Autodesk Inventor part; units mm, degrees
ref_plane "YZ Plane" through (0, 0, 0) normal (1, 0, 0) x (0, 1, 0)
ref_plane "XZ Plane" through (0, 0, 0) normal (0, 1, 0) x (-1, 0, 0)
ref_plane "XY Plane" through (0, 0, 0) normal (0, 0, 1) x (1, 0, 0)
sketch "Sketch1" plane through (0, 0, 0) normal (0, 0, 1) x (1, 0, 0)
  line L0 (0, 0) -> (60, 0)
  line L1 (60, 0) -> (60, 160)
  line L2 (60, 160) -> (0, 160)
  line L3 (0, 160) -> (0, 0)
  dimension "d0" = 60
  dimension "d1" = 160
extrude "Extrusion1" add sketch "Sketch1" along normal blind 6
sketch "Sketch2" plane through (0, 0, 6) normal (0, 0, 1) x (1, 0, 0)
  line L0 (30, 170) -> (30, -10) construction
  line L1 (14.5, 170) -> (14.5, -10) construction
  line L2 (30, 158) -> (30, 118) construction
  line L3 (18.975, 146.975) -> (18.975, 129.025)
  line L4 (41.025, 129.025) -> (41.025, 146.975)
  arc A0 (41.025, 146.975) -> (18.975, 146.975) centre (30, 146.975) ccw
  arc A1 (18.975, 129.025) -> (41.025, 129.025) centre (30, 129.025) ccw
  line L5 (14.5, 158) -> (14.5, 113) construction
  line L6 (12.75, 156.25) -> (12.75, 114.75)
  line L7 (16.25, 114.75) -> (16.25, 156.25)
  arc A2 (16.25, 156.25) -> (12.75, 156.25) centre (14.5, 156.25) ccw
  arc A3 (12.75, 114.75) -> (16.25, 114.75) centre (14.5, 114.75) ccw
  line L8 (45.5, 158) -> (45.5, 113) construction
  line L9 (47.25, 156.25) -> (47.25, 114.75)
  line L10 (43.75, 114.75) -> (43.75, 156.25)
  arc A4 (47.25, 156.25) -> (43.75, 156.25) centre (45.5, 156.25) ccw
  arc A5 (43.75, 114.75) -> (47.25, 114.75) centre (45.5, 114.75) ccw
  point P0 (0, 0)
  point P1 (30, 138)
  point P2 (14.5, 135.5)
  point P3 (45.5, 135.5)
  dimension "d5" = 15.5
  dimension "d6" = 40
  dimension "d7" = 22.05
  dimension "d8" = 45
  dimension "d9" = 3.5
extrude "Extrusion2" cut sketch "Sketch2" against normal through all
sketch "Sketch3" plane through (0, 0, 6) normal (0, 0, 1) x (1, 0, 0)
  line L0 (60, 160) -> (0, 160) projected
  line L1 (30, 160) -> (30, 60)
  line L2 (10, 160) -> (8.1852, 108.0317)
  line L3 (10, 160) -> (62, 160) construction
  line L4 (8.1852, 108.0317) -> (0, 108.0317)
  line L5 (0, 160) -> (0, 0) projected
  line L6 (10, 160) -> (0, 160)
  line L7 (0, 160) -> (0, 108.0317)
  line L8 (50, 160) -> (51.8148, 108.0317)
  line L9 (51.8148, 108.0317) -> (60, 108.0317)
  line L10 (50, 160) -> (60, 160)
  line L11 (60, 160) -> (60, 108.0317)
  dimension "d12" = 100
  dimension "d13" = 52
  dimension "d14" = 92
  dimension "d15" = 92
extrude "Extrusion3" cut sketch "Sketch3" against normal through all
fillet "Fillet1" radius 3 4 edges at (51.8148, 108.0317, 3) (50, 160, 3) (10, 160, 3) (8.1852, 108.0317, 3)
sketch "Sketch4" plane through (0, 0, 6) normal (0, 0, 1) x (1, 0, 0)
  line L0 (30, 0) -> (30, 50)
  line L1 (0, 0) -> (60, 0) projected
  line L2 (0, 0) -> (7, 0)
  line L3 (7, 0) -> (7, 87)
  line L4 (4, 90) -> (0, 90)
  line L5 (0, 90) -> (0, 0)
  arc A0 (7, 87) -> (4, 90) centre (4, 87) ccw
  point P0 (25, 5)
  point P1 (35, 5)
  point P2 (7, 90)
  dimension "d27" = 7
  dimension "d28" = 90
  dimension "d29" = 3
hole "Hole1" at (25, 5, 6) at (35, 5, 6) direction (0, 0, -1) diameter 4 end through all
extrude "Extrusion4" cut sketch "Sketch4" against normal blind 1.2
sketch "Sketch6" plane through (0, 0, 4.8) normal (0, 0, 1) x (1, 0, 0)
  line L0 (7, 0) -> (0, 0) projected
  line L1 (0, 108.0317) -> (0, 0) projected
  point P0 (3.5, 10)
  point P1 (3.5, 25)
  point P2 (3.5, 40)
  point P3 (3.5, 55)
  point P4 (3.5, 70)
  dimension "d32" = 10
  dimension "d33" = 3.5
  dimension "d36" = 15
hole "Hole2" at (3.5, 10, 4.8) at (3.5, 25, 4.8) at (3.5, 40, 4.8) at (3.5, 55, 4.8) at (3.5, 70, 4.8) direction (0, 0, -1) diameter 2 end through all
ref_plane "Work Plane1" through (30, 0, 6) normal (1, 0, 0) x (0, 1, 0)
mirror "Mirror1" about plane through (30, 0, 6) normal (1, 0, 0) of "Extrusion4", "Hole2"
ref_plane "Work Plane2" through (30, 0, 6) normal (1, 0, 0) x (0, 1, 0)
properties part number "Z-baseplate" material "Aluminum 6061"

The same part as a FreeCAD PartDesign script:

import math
import FreeCAD as App
import Part
import Sketcher
from FreeCAD import Vector
Q = App.Units.Quantity


def edges_at(feature, points):
    """Names of the edges that pass closest to the given points."""
    edges = feature.Shape.Edges
    near = lambda p: min(range(len(edges)), key=lambda i: edges[i].distToShape(Part.Vertex(*p))[0])
    return sorted({f"Edge{near(p) + 1}" for p in points})

doc = App.newDocument("Part")
params = doc.addObject("Spreadsheet::Sheet", "Params")
for row, (alias, value) in enumerate([
    ("sketch1_width", "60 mm"),
    ("sketch1_height", "160 mm"),
    ("pad1_length", "6 mm"),
    ("sketch2_radius", "1.75 mm"),
    ("sketch2_height", "41.5 mm"),
    ("sketch2_height2", "17.95 mm"),
    ("sketch3_length", "52 mm"),
    ("sketch3_width", "10 mm"),
    ("fillet_radius", "3 mm"),
    ("sketch4_diameter", "4 mm"),
    ("hole_diameter", "4 mm"),
    ("sketch5_radius", "3 mm"),
    ("sketch5_width", "7 mm"),
    ("sketch5_height", "90 mm"),
    ("pocket3_length", "1.2 mm"),
    ("sketch6_diameter", "2 mm"),
    ("hole2_diameter", "2 mm"),
], start=1):
    params.set(f"A{row}", alias)
    params.set(f"B{row}", "=" + value)
    params.setAlias(f"B{row}", alias)

body = doc.addObject("PartDesign::Body", "Body")

sketch1 = body.newObject("Sketcher::SketchObject", "Sketch")
sketch1.AttachmentSupport = (doc.getObject("XY_Plane"), [""])
sketch1.MapMode = "FlatFace"
sketch1.addGeometry(Part.LineSegment(Vector(0, 160, 0), Vector(0, 0, 0)), False)
sketch1.addGeometry(Part.LineSegment(Vector(0, 0, 0), Vector(60, 0, 0)), False)
sketch1.addGeometry(Part.LineSegment(Vector(60, 0, 0), Vector(60, 160, 0)), False)
sketch1.addGeometry(Part.LineSegment(Vector(60, 160, 0), Vector(0, 160, 0)), False)
sketch1.addConstraint(Sketcher.Constraint("Coincident", 0, 2, 1, 1))
sketch1.addConstraint(Sketcher.Constraint("Coincident", 1, 2, 2, 1))
sketch1.addConstraint(Sketcher.Constraint("Coincident", 2, 2, 3, 1))
sketch1.addConstraint(Sketcher.Constraint("Coincident", 3, 2, 0, 1))
sketch1.addConstraint(Sketcher.Constraint("Vertical", 0))
sketch1.addConstraint(Sketcher.Constraint("Horizontal", 1))
sketch1.addConstraint(Sketcher.Constraint("Vertical", 2))
sketch1.addConstraint(Sketcher.Constraint("Horizontal", 3))
sketch1.addConstraint(Sketcher.Constraint("Coincident", 0, 2, -1, 1))
sketch1.addConstraint(Sketcher.Constraint("DistanceX", 1, 1, 1, 2, Q("60 mm")))
sketch1.addConstraint(Sketcher.Constraint("DistanceY", 0, 2, 0, 1, Q("160 mm")))
sketch1.setExpression("Constraints[9]", "Params.sketch1_width")
sketch1.setExpression("Constraints[10]", "Params.sketch1_height")
pad1 = body.newObject("PartDesign::Pad", "Pad")
pad1.Profile = sketch1
pad1.setExpression("Length", "Params.pad1_length")

sketch2 = body.newObject("Sketcher::SketchObject", "Sketch001")
sketch2.AttachmentSupport = (doc.getObject("XY_Plane"), [""])
sketch2.MapMode = "FlatFace"
sketch2.AttachmentOffset = App.Placement(Vector(0, 0, 6), App.Rotation())
sketch2.addGeometry(Part.ArcOfCircle(Part.Circle(Vector(30, 146.975, 0), Vector(0, 0, 1), 11.025), math.radians(0), math.radians(180)), False)
sketch2.addGeometry(Part.LineSegment(Vector(18.975, 146.975, 0), Vector(18.975, 129.025, 0)), False)
sketch2.addGeometry(Part.ArcOfCircle(Part.Circle(Vector(30, 129.025, 0), Vector(0, 0, 1), 11.025), math.radians(180), math.radians(360)), False)
sketch2.addGeometry(Part.LineSegment(Vector(41.025, 129.025, 0), Vector(41.025, 146.975, 0)), False)
sketch2.addGeometry(Part.ArcOfCircle(Part.Circle(Vector(14.5, 156.25, 0), Vector(0, 0, 1), 1.75), math.radians(0), math.radians(180)), False)
sketch2.addGeometry(Part.LineSegment(Vector(12.75, 156.25, 0), Vector(12.75, 114.75, 0)), False)
sketch2.addGeometry(Part.ArcOfCircle(Part.Circle(Vector(14.5, 114.75, 0), Vector(0, 0, 1), 1.75), math.radians(180), math.radians(360)), False)
sketch2.addGeometry(Part.LineSegment(Vector(16.25, 114.75, 0), Vector(16.25, 156.25, 0)), False)
sketch2.addGeometry(Part.LineSegment(Vector(47.25, 114.75, 0), Vector(47.25, 156.25, 0)), False)
sketch2.addGeometry(Part.ArcOfCircle(Part.Circle(Vector(45.5, 156.25, 0), Vector(0, 0, 1), 1.75), math.radians(0), math.radians(180)), False)
sketch2.addGeometry(Part.LineSegment(Vector(43.75, 156.25, 0), Vector(43.75, 114.75, 0)), False)
sketch2.addGeometry(Part.ArcOfCircle(Part.Circle(Vector(45.5, 114.75, 0), Vector(0, 0, 1), 1.75), math.radians(180), math.radians(360)), False)
sketch2.addConstraint(Sketcher.Constraint("Tangent", 0, 2, 1, 1))
sketch2.addConstraint(Sketcher.Constraint("Tangent", 1, 2, 2, 1))
sketch2.addConstraint(Sketcher.Constraint("Tangent", 2, 2, 3, 1))
sketch2.addConstraint(Sketcher.Constraint("Tangent", 3, 2, 0, 1))
sketch2.addConstraint(Sketcher.Constraint("Tangent", 4, 2, 5, 1))
sketch2.addConstraint(Sketcher.Constraint("Tangent", 5, 2, 6, 1))
sketch2.addConstraint(Sketcher.Constraint("Tangent", 6, 2, 7, 1))
sketch2.addConstraint(Sketcher.Constraint("Tangent", 7, 2, 4, 1))
sketch2.addConstraint(Sketcher.Constraint("Tangent", 8, 2, 9, 1))
sketch2.addConstraint(Sketcher.Constraint("Tangent", 9, 2, 10, 1))
sketch2.addConstraint(Sketcher.Constraint("Tangent", 10, 2, 11, 1))
sketch2.addConstraint(Sketcher.Constraint("Tangent", 11, 2, 8, 1))
sketch2.addConstraint(Sketcher.Constraint("Vertical", 1))
sketch2.addConstraint(Sketcher.Constraint("Vertical", 3))
sketch2.addConstraint(Sketcher.Constraint("Vertical", 5))
sketch2.addConstraint(Sketcher.Constraint("Vertical", 7))
sketch2.addConstraint(Sketcher.Constraint("Vertical", 8))
sketch2.addConstraint(Sketcher.Constraint("Vertical", 10))
sketch2.addConstraint(Sketcher.Constraint("Equal", 6, 9))
sketch2.addConstraint(Sketcher.Constraint("Horizontal", 4, 3, 9, 3))
sketch2.addConstraint(Sketcher.Constraint("Horizontal", 6, 3, 11, 3))
sketch2.addConstraint(Sketcher.Constraint("Radius", 4, Q("1.75 mm")))
sketch2.addConstraint(Sketcher.Constraint("Radius", 0, Q("11.025 mm")))
sketch2.addConstraint(Sketcher.Constraint("DistanceX", 4, 3, 0, 3, Q("15.5 mm")))
sketch2.addConstraint(Sketcher.Constraint("DistanceX", 0, 3, 9, 3, Q("15.5 mm")))
sketch2.addConstraint(Sketcher.Constraint("DistanceY", 5, 2, 5, 1, Q("41.5 mm")))
sketch2.addConstraint(Sketcher.Constraint("DistanceX", -1, 1, 0, 3, Q("30 mm")))
sketch2.addConstraint(Sketcher.Constraint("DistanceY", 1, 2, 1, 1, Q("17.95 mm")))
sketch2.addConstraint(Sketcher.Constraint("DistanceY", -1, 1, 4, 3, Q("156.25 mm")))
sketch2.addConstraint(Sketcher.Constraint("DistanceY", -1, 1, 0, 3, Q("146.975 mm")))
sketch2.setExpression("Constraints[21]", "Params.sketch2_radius")
sketch2.setExpression("Constraints[25]", "Params.sketch2_height")
sketch2.setExpression("Constraints[27]", "Params.sketch2_height2")
pocket1 = body.newObject("PartDesign::Pocket", "Pocket")
pocket1.Profile = sketch2
pocket1.Type = "ThroughAll"

sketch3 = body.newObject("Sketcher::SketchObject", "Sketch002")
sketch3.AttachmentSupport = (doc.getObject("XY_Plane"), [""])
sketch3.MapMode = "FlatFace"
sketch3.AttachmentOffset = App.Placement(Vector(0, 0, 6), App.Rotation())
sketch3.addGeometry(Part.LineSegment(Vector(60, 108.0317, 0), Vector(60, 160, 0)), False)
sketch3.addGeometry(Part.LineSegment(Vector(60, 160, 0), Vector(50, 160, 0)), False)
sketch3.addGeometry(Part.LineSegment(Vector(50, 160, 0), Vector(51.8148, 108.0317, 0)), False)
sketch3.addGeometry(Part.LineSegment(Vector(51.8148, 108.0317, 0), Vector(60, 108.0317, 0)), False)
sketch3.addGeometry(Part.LineSegment(Vector(8.1852, 108.0317, 0), Vector(10, 160, 0)), False)
sketch3.addGeometry(Part.LineSegment(Vector(10, 160, 0), Vector(0, 160, 0)), False)
sketch3.addGeometry(Part.LineSegment(Vector(0, 160, 0), Vector(0, 108.0317, 0)), False)
sketch3.addGeometry(Part.LineSegment(Vector(0, 108.0317, 0), Vector(8.1852, 108.0317, 0)), False)
sketch3.addConstraint(Sketcher.Constraint("Coincident", 0, 2, 1, 1))
sketch3.addConstraint(Sketcher.Constraint("Coincident", 1, 2, 2, 1))
sketch3.addConstraint(Sketcher.Constraint("Coincident", 2, 2, 3, 1))
sketch3.addConstraint(Sketcher.Constraint("Coincident", 3, 2, 0, 1))
sketch3.addConstraint(Sketcher.Constraint("Coincident", 4, 2, 5, 1))
sketch3.addConstraint(Sketcher.Constraint("Coincident", 5, 2, 6, 1))
sketch3.addConstraint(Sketcher.Constraint("Coincident", 6, 2, 7, 1))
sketch3.addConstraint(Sketcher.Constraint("Coincident", 7, 2, 4, 1))
sketch3.addConstraint(Sketcher.Constraint("Vertical", 0))
sketch3.addConstraint(Sketcher.Constraint("Horizontal", 1))
sketch3.addConstraint(Sketcher.Constraint("Horizontal", 3))
sketch3.addConstraint(Sketcher.Constraint("Horizontal", 5))
sketch3.addConstraint(Sketcher.Constraint("Vertical", 6))
sketch3.addConstraint(Sketcher.Constraint("Horizontal", 7))
sketch3.addConstraint(Sketcher.Constraint("PointOnObject", 5, 2, -2))
sketch3.addConstraint(Sketcher.Constraint("Horizontal", 1, 2, 4, 2))
sketch3.addConstraint(Sketcher.Constraint("Horizontal", 3, 2, 6, 2))
sketch3.addConstraint(Sketcher.Constraint("Equal", 1, 5))
sketch3.addConstraint(Sketcher.Constraint("Equal", 3, 7))
sketch3.addConstraint(Sketcher.Constraint("Distance", 2, Q("52 mm")))
sketch3.addConstraint(Sketcher.Constraint("DistanceX", 1, 2, 1, 1, Q("10 mm")))
sketch3.addConstraint(Sketcher.Constraint("Angle", 2, Q("-88 deg")))
sketch3.addConstraint(Sketcher.Constraint("DistanceX", -1, 1, 0, 2, Q("60 mm")))
sketch3.addConstraint(Sketcher.Constraint("DistanceY", -1, 1, 0, 2, Q("160 mm")))
sketch3.setExpression("Constraints[19]", "Params.sketch3_length")
sketch3.setExpression("Constraints[20]", "Params.sketch3_width")
pocket2 = body.newObject("PartDesign::Pocket", "Pocket001")
pocket2.Profile = sketch3
pocket2.Type = "ThroughAll"
doc.recompute()

fillet = body.newObject("PartDesign::Fillet", "Fillet")
fillet.Base = (pocket2, edges_at(pocket2, [
    (51.815, 108.032, 3),
    (50, 160, 3),
    (10, 160, 3),
    (8.185, 108.032, 3),
]))
fillet.setExpression("Radius", "Params.fillet_radius")

sketch4 = body.newObject("Sketcher::SketchObject", "Sketch003")
sketch4.AttachmentSupport = (doc.getObject("XY_Plane"), [""])
sketch4.MapMode = "FlatFace"
sketch4.AttachmentOffset = App.Placement(Vector(0, 0, 6), App.Rotation())
sketch4.addGeometry(Part.Circle(Vector(25, 5, 0), Vector(0, 0, 1), 2), False)
sketch4.addGeometry(Part.Circle(Vector(35, 5, 0), Vector(0, 0, 1), 2), False)
sketch4.addConstraint(Sketcher.Constraint("Equal", 0, 1))
sketch4.addConstraint(Sketcher.Constraint("Horizontal", 0, 3, 1, 3))
sketch4.addConstraint(Sketcher.Constraint("Diameter", 0, Q("4 mm")))
sketch4.addConstraint(Sketcher.Constraint("DistanceX", -1, 1, 0, 3, Q("25 mm")))
sketch4.addConstraint(Sketcher.Constraint("DistanceY", -1, 1, 0, 3, Q("5 mm")))
sketch4.addConstraint(Sketcher.Constraint("DistanceX", -1, 1, 1, 3, Q("35 mm")))
sketch4.setExpression("Constraints[2]", "Params.sketch4_diameter")
doc.recompute()
hole = body.newObject("PartDesign::Hole", "Hole")
hole.Profile = sketch4
hole.ThreadType = "None"
hole.setExpression("Diameter", "Params.hole_diameter")
hole.DepthType = "ThroughAll"

sketch5 = body.newObject("Sketcher::SketchObject", "Sketch004")
sketch5.AttachmentSupport = (doc.getObject("XY_Plane"), [""])
sketch5.MapMode = "FlatFace"
sketch5.AttachmentOffset = App.Placement(Vector(0, 0, 6), App.Rotation())
sketch5.addGeometry(Part.LineSegment(Vector(0, 90, 0), Vector(0, 0, 0)), False)
sketch5.addGeometry(Part.LineSegment(Vector(0, 0, 0), Vector(7, 0, 0)), False)
sketch5.addGeometry(Part.LineSegment(Vector(7, 0, 0), Vector(7, 87, 0)), False)
sketch5.addGeometry(Part.ArcOfCircle(Part.Circle(Vector(4, 87, 0), Vector(0, 0, 1), 3), math.radians(0), math.radians(90)), False)
sketch5.addGeometry(Part.LineSegment(Vector(4, 90, 0), Vector(0, 90, 0)), False)
sketch5.addConstraint(Sketcher.Constraint("Coincident", 0, 2, 1, 1))
sketch5.addConstraint(Sketcher.Constraint("Coincident", 1, 2, 2, 1))
sketch5.addConstraint(Sketcher.Constraint("Tangent", 2, 2, 3, 1))
sketch5.addConstraint(Sketcher.Constraint("Tangent", 3, 2, 4, 1))
sketch5.addConstraint(Sketcher.Constraint("Coincident", 4, 2, 0, 1))
sketch5.addConstraint(Sketcher.Constraint("Vertical", 0))
sketch5.addConstraint(Sketcher.Constraint("Horizontal", 1))
sketch5.addConstraint(Sketcher.Constraint("Vertical", 2))
sketch5.addConstraint(Sketcher.Constraint("Horizontal", 4))
sketch5.addConstraint(Sketcher.Constraint("Coincident", 0, 2, -1, 1))
sketch5.addConstraint(Sketcher.Constraint("Radius", 3, Q("3 mm")))
sketch5.addConstraint(Sketcher.Constraint("DistanceX", 1, 1, 1, 2, Q("7 mm")))
sketch5.addConstraint(Sketcher.Constraint("DistanceY", 0, 2, 0, 1, Q("90 mm")))
sketch5.setExpression("Constraints[10]", "Params.sketch5_radius")
sketch5.setExpression("Constraints[11]", "Params.sketch5_width")
sketch5.setExpression("Constraints[12]", "Params.sketch5_height")
pocket3 = body.newObject("PartDesign::Pocket", "Pocket002")
pocket3.Profile = sketch5
pocket3.setExpression("Length", "Params.pocket3_length")

sketch6 = body.newObject("Sketcher::SketchObject", "Sketch005")
sketch6.AttachmentSupport = (doc.getObject("XY_Plane"), [""])
sketch6.MapMode = "FlatFace"
sketch6.AttachmentOffset = App.Placement(Vector(0, 0, 4.8), App.Rotation())
sketch6.addGeometry(Part.Circle(Vector(3.5, 10, 0), Vector(0, 0, 1), 1), False)
sketch6.addGeometry(Part.Circle(Vector(3.5, 25, 0), Vector(0, 0, 1), 1), False)
sketch6.addGeometry(Part.Circle(Vector(3.5, 40, 0), Vector(0, 0, 1), 1), False)
sketch6.addGeometry(Part.Circle(Vector(3.5, 55, 0), Vector(0, 0, 1), 1), False)
sketch6.addGeometry(Part.Circle(Vector(3.5, 70, 0), Vector(0, 0, 1), 1), False)
sketch6.addConstraint(Sketcher.Constraint("Equal", 0, 1))
sketch6.addConstraint(Sketcher.Constraint("Equal", 1, 2))
sketch6.addConstraint(Sketcher.Constraint("Equal", 2, 3))
sketch6.addConstraint(Sketcher.Constraint("Equal", 3, 4))
sketch6.addConstraint(Sketcher.Constraint("Vertical", 0, 3, 1, 3))
sketch6.addConstraint(Sketcher.Constraint("Vertical", 1, 3, 2, 3))
sketch6.addConstraint(Sketcher.Constraint("Vertical", 2, 3, 3, 3))
sketch6.addConstraint(Sketcher.Constraint("Vertical", 3, 3, 4, 3))
sketch6.addConstraint(Sketcher.Constraint("Diameter", 0, Q("2 mm")))
sketch6.addConstraint(Sketcher.Constraint("DistanceY", -1, 1, 0, 3, Q("10 mm")))
sketch6.addConstraint(Sketcher.Constraint("DistanceY", -1, 1, 1, 3, Q("25 mm")))
sketch6.addConstraint(Sketcher.Constraint("DistanceY", -1, 1, 2, 3, Q("40 mm")))
sketch6.addConstraint(Sketcher.Constraint("DistanceY", -1, 1, 3, 3, Q("55 mm")))
sketch6.addConstraint(Sketcher.Constraint("DistanceY", -1, 1, 4, 3, Q("70 mm")))
sketch6.addConstraint(Sketcher.Constraint("DistanceX", -1, 1, 0, 3, Q("3.5 mm")))
sketch6.setExpression("Constraints[8]", "Params.sketch6_diameter")
doc.recompute()
hole2 = body.newObject("PartDesign::Hole", "Hole001")
hole2.Profile = sketch6
hole2.ThreadType = "None"
hole2.setExpression("Diameter", "Params.hole2_diameter")
hole2.DepthType = "ThroughAll"
doc.recompute()

datumplane = body.newObject("PartDesign::Plane", "DatumPlane")
datumplane.AttachmentSupport = (doc.getObject("YZ_Plane"), [""])
datumplane.MapMode = "FlatFace"
datumplane.AttachmentOffset = App.Placement(Vector(0, 0, 30), App.Rotation())
mirrored = body.newObject("PartDesign::Mirrored", "Mirrored")
mirrored.Originals = [pocket3, hole2]
mirrored.MirrorPlane = (datumplane, [""])
body.Tip = mirrored

doc.recompute()
